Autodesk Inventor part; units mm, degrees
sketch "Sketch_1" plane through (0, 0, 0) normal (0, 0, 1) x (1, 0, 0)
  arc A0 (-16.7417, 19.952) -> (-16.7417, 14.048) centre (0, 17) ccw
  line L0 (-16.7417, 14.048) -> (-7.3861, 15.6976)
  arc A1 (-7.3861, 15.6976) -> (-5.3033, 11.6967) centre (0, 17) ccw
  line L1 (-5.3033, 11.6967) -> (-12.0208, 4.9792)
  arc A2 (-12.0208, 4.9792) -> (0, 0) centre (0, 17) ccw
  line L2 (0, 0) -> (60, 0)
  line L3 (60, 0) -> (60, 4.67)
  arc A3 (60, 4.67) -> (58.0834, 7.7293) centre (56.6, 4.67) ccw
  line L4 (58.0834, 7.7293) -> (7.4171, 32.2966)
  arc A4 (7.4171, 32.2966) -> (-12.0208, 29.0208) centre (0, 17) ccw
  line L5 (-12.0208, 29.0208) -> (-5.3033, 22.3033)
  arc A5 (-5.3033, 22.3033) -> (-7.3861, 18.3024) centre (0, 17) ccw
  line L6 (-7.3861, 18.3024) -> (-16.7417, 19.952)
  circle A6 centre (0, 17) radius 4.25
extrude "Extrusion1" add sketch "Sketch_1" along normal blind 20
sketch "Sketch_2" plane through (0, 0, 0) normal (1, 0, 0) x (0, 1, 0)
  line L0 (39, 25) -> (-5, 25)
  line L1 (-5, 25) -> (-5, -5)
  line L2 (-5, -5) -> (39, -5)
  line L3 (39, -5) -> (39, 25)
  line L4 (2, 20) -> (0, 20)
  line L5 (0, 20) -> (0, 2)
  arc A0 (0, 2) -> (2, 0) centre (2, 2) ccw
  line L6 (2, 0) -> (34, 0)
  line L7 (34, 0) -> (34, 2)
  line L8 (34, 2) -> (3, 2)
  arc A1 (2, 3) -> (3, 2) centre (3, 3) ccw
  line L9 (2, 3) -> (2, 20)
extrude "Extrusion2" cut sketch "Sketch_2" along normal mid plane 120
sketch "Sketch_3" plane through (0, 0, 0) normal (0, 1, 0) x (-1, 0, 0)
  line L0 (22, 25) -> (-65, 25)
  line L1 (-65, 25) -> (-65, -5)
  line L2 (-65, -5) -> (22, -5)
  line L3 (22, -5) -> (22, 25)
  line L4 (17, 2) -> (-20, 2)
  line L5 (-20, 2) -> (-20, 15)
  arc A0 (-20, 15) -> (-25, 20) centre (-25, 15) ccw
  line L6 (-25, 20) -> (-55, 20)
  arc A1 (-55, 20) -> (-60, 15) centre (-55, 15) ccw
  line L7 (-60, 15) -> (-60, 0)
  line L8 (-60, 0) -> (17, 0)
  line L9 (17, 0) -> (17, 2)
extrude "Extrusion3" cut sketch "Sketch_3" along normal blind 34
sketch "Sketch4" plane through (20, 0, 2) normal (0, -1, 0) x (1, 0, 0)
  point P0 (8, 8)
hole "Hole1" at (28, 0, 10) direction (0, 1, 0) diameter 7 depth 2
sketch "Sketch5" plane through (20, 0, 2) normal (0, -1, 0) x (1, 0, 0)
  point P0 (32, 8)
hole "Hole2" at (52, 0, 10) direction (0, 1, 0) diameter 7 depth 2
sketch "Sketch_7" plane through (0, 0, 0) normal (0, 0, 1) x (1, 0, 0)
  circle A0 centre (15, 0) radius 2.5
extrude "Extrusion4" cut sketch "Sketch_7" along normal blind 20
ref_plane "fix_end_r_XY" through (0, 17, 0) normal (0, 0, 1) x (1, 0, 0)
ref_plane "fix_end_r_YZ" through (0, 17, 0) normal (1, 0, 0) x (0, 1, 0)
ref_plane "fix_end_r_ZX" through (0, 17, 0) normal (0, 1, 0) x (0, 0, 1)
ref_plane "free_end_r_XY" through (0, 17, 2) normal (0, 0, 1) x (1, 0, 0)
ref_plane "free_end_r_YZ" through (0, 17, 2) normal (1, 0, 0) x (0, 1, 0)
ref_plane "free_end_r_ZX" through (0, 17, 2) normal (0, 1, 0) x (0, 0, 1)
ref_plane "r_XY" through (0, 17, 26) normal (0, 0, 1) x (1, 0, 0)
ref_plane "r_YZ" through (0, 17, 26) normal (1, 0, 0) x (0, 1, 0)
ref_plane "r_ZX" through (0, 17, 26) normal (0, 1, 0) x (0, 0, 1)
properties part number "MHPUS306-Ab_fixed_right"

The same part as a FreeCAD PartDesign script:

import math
import FreeCAD as App
import Part
import Sketcher

V = App.Vector
Q = App.Units.Quantity

doc = App.newDocument("Part")
body = doc.addObject("PartDesign::Body", "Body")

sketch1 = body.newObject("Sketcher::SketchObject", "Sketch")
sketch1.AttachmentSupport = (doc.getObject("XY_Plane"), [""])
sketch1.MapMode = "FlatFace"
sketch1.addGeometry(Part.LineSegment(V(-7.4, 18.3, 0), V(-16.7, 20, 0)), False)
sketch1.addGeometry(Part.ArcOfCircle(Part.Circle(V(0, 17, 0), V(0, 0, 1), 17), math.radians(170), math.radians(190)), False)
sketch1.addGeometry(Part.LineSegment(V(-16.7, 14, 0), V(-7.4, 15.7, 0)), False)
sketch1.addGeometry(Part.ArcOfCircle(Part.Circle(V(0, 17, 0), V(0, 0, 1), 7.5), math.radians(-170), math.radians(-135)), False)
sketch1.addGeometry(Part.LineSegment(V(-5.3, 11.7, 0), V(-12, 5, 0)), False)
sketch1.addGeometry(Part.ArcOfCircle(Part.Circle(V(0, 17, 0), V(0, 0, 1), 17), math.radians(-135), math.radians(-90)), False)
sketch1.addGeometry(Part.LineSegment(V(0, 0, 0), V(60, 0, 0)), False)
sketch1.addGeometry(Part.LineSegment(V(60, 0, 0), V(60, 4.7, 0)), False)
sketch1.addGeometry(Part.ArcOfCircle(Part.Circle(V(56.6, 4.7, 0), V(0, 0, 1), 3.4), math.radians(0), math.radians(64)), False)
sketch1.addGeometry(Part.LineSegment(V(58.1, 7.7, 0), V(7.4, 32.3, 0)), False)
sketch1.addGeometry(Part.ArcOfCircle(Part.Circle(V(0, 17, 0), V(0, 0, 1), 17), math.radians(64), math.radians(135)), False)
sketch1.addGeometry(Part.LineSegment(V(-12, 29, 0), V(-5.3, 22.3, 0)), False)
sketch1.addGeometry(Part.ArcOfCircle(Part.Circle(V(0, 17, 0), V(0, 0, 1), 7.5), math.radians(135), math.radians(170)), False)
sketch1.addGeometry(Part.Circle(V(0, 17, 0), V(0, 0, 1), 4.2), False)
sketch1.addConstraint(Sketcher.Constraint("Coincident", 0, 2, 1, 1))
sketch1.addConstraint(Sketcher.Constraint("Coincident", 1, 2, 2, 1))
sketch1.addConstraint(Sketcher.Constraint("Coincident", 2, 2, 3, 1))
sketch1.addConstraint(Sketcher.Constraint("Coincident", 3, 2, 4, 1))
sketch1.addConstraint(Sketcher.Constraint("Coincident", 4, 2, 5, 1))
sketch1.addConstraint(Sketcher.Constraint("Tangent", 5, 2, 6, 1))
sketch1.addConstraint(Sketcher.Constraint("Coincident", 6, 2, 7, 1))
sketch1.addConstraint(Sketcher.Constraint("Tangent", 7, 2, 8, 1))
sketch1.addConstraint(Sketcher.Constraint("Tangent", 8, 2, 9, 1))
sketch1.addConstraint(Sketcher.Constraint("Tangent", 9, 2, 10, 1))
sketch1.addConstraint(Sketcher.Constraint("Coincident", 10, 2, 11, 1))
sketch1.addConstraint(Sketcher.Constraint("Coincident", 11, 2, 12, 1))
sketch1.addConstraint(Sketcher.Constraint("Coincident", 12, 2, 0, 1))
sketch1.addConstraint(Sketcher.Constraint("Horizontal", 6))
sketch1.addConstraint(Sketcher.Constraint("Vertical", 7))
sketch1.addConstraint(Sketcher.Constraint("Coincident", 5, 2, -1, 1))
sketch1.addConstraint(Sketcher.Constraint("Coincident", 3, 3, 1, 3))
sketch1.addConstraint(Sketcher.Constraint("Coincident", 5, 3, 1, 3))
sketch1.addConstraint(Sketcher.Constraint("Coincident", 10, 3, 1, 3))
sketch1.addConstraint(Sketcher.Constraint("Coincident", 12, 3, 1, 3))
sketch1.addConstraint(Sketcher.Constraint("Coincident", 13, 3, 1, 3))
sketch1.addConstraint(Sketcher.Constraint("Equal", 1, 5))
sketch1.addConstraint(Sketcher.Constraint("Equal", 5, 10))
sketch1.addConstraint(Sketcher.Constraint("Equal", 3, 12))
sketch1.addConstraint(Sketcher.Constraint("Perpendicular", 4, 11))
sketch1.addConstraint(Sketcher.Constraint("Vertical", 0, 2, 1, 2))
sketch1.addConstraint(Sketcher.Constraint("Vertical", 4, 2, 10, 2))
sketch1.addConstraint(Sketcher.Constraint("Vertical", 3, 2, 11, 2))
sketch1.addConstraint(Sketcher.Constraint("Vertical", 2, 2, 12, 2))
sketch1.addConstraint(Sketcher.Constraint("Radius", 1, 17.0))
sketch1.addConstraint(Sketcher.Constraint("Diameter", 13, 8.5))
sketch1.addConstraint(Sketcher.Constraint("Radius", 3, 7.5))
sketch1.addConstraint(Sketcher.Constraint("Radius", 8, 3.4))
sketch1.addConstraint(Sketcher.Constraint("DistanceX", 6, 1, 6, 2, 60.0))
sketch1.addConstraint(Sketcher.Constraint("Angle", 0, Q("170.0003 deg")))
sketch1.addConstraint(Sketcher.Constraint("DistanceY", 7, 1, 7, 2, 4.67))
sketch1.addConstraint(Sketcher.Constraint("DistanceY", -1, 1, 0, 2, 19.952))
sketch1.addConstraint(Sketcher.Constraint("DistanceY", 3, 2, 2, 2, 4.001))
pad1 = body.newObject("PartDesign::Pad", "Pad")
pad1.Profile = sketch1
pad1.Length = 20

sketch2 = body.newObject("Sketcher::SketchObject", "Sketch001")
sketch2.AttachmentSupport = (doc.getObject("YZ_Plane"), [""])
sketch2.MapMode = "FlatFace"
sketch2.addGeometry(Part.LineSegment(V(39, -5, 0), V(39, 25, 0)), False)
sketch2.addGeometry(Part.LineSegment(V(39, 25, 0), V(-5, 25, 0)), False)
sketch2.addGeometry(Part.LineSegment(V(-5, 25, 0), V(-5, -5, 0)), False)
sketch2.addGeometry(Part.LineSegment(V(-5, -5, 0), V(39, -5, 0)), False)
sketch2.addGeometry(Part.LineSegment(V(0, 20, 0), V(2, 20, 0)), False)
sketch2.addGeometry(Part.LineSegment(V(2, 20, 0), V(2, 3, 0)), False)
sketch2.addGeometry(Part.ArcOfCircle(Part.Circle(V(3, 3, 0), V(0, 0, 1), 1), math.radians(180), math.radians(270)), False)
sketch2.addGeometry(Part.LineSegment(V(3, 2, 0), V(34, 2, 0)), False)
sketch2.addGeometry(Part.LineSegment(V(34, 2, 0), V(34, 0, 0)), False)
sketch2.addGeometry(Part.LineSegment(V(34, 0, 0), V(2, 0, 0)), False)
sketch2.addGeometry(Part.ArcOfCircle(Part.Circle(V(2, 2, 0), V(0, 0, 1), 2), math.radians(180), math.radians(270)), False)
sketch2.addGeometry(Part.LineSegment(V(0, 2, 0), V(0, 20, 0)), False)
sketch2.addConstraint(Sketcher.Constraint("Coincident", 0, 2, 1, 1))
sketch2.addConstraint(Sketcher.Constraint("Coincident", 1, 2, 2, 1))
sketch2.addConstraint(Sketcher.Constraint("Coincident", 2, 2, 3, 1))
sketch2.addConstraint(Sketcher.Constraint("Coincident", 3, 2, 0, 1))
sketch2.addConstraint(Sketcher.Constraint("Coincident", 4, 2, 5, 1))
sketch2.addConstraint(Sketcher.Constraint("Tangent", 5, 2, 6, 1))
sketch2.addConstraint(Sketcher.Constraint("Tangent", 6, 2, 7, 1))
sketch2.addConstraint(Sketcher.Constraint("Coincident", 7, 2, 8, 1))
sketch2.addConstraint(Sketcher.Constraint("Coincident", 8, 2, 9, 1))
sketch2.addConstraint(Sketcher.Constraint("Tangent", 9, 2, 10, 2))
sketch2.addConstraint(Sketcher.Constraint("Tangent", 10, 1, 11, 1))
sketch2.addConstraint(Sketcher.Constraint("Coincident", 11, 2, 4, 1))
sketch2.addConstraint(Sketcher.Constraint("Vertical", 0))
sketch2.addConstraint(Sketcher.Constraint("Horizontal", 1))
sketch2.addConstraint(Sketcher.Constraint("Vertical", 2))
sketch2.addConstraint(Sketcher.Constraint("Horizontal", 3))
sketch2.addConstraint(Sketcher.Constraint("Horizontal", 4))
sketch2.addConstraint(Sketcher.Constraint("Vertical", 5))
sketch2.addConstraint(Sketcher.Constraint("Horizontal", 7))
sketch2.addConstraint(Sketcher.Constraint("Vertical", 8))
sketch2.addConstraint(Sketcher.Constraint("Horizontal", 9))
sketch2.addConstraint(Sketcher.Constraint("Vertical", 11))
sketch2.addConstraint(Sketcher.Constraint("PointOnObject", 8, 2, -1))
sketch2.addConstraint(Sketcher.Constraint("PointOnObject", 10, 1, -2))
sketch2.addConstraint(Sketcher.Constraint("Horizontal", 10, 3, 6, 2))
sketch2.addConstraint(Sketcher.Constraint("Vertical", 10, 3, 4, 2))
sketch2.addConstraint(Sketcher.Constraint("Radius", 6, 1.0))
sketch2.addConstraint(Sketcher.Constraint("Radius", 10, 2.0))
sketch2.addConstraint(Sketcher.Constraint("DistanceX", 1, 2, 1, 1, 44.0))
sketch2.addConstraint(Sketcher.Constraint("DistanceX", 7, 1, 7, 2, 31.0))
sketch2.addConstraint(Sketcher.Constraint("DistanceY", 0, 1, 0, 2, 30.0))
sketch2.addConstraint(Sketcher.Constraint("DistanceY", 5, 2, 5, 1, 17.0))
sketch2.addConstraint(Sketcher.Constraint("DistanceX", -1, 1, 0, 2, 39.0))
sketch2.addConstraint(Sketcher.Constraint("DistanceY", -1, 1, 0, 2, 25.0))
pocket1 = body.newObject("PartDesign::Pocket", "Pocket")
pocket1.Profile = sketch2
pocket1.Length = 120
pocket1.Midplane = True

sketch3 = body.newObject("Sketcher::SketchObject", "Sketch002")
sketch3.AttachmentSupport = (doc.getObject("XZ_Plane"), [""])
sketch3.MapMode = "FlatFace"
sketch3.addGeometry(Part.LineSegment(V(-22, -5, 0), V(-22, 25, 0)), False)
sketch3.addGeometry(Part.LineSegment(V(-22, 25, 0), V(65, 25, 0)), False)
sketch3.addGeometry(Part.LineSegment(V(65, 25, 0), V(65, -5, 0)), False)
sketch3.addGeometry(Part.LineSegment(V(65, -5, 0), V(-22, -5, 0)), False)
sketch3.addGeometry(Part.LineSegment(V(20, 2, 0), V(-17, 2, 0)), False)
sketch3.addGeometry(Part.LineSegment(V(-17, 2, 0), V(-17, 0, 0)), False)
sketch3.addGeometry(Part.LineSegment(V(-17, 0, 0), V(60, 0, 0)), False)
sketch3.addGeometry(Part.LineSegment(V(60, 0, 0), V(60, 15, 0)), False)
sketch3.addGeometry(Part.ArcOfCircle(Part.Circle(V(55, 15, 0), V(0, 0, 1), 5), math.radians(0), math.radians(90)), False)
sketch3.addGeometry(Part.LineSegment(V(55, 20, 0), V(25, 20, 0)), False)
sketch3.addGeometry(Part.ArcOfCircle(Part.Circle(V(25, 15, 0), V(0, 0, 1), 5), math.radians(90), math.radians(180)), False)
sketch3.addGeometry(Part.LineSegment(V(20, 15, 0), V(20, 2, 0)), False)
sketch3.addConstraint(Sketcher.Constraint("Coincident", 0, 2, 1, 1))
sketch3.addConstraint(Sketcher.Constraint("Coincident", 1, 2, 2, 1))
sketch3.addConstraint(Sketcher.Constraint("Coincident", 2, 2, 3, 1))
sketch3.addConstraint(Sketcher.Constraint("Coincident", 3, 2, 0, 1))
sketch3.addConstraint(Sketcher.Constraint("Coincident", 4, 2, 5, 1))
sketch3.addConstraint(Sketcher.Constraint("Coincident", 5, 2, 6, 1))
sketch3.addConstraint(Sketcher.Constraint("Coincident", 6, 2, 7, 1))
sketch3.addConstraint(Sketcher.Constraint("Tangent", 7, 2, 8, 1))
sketch3.addConstraint(Sketcher.Constraint("Tangent", 8, 2, 9, 1))
sketch3.addConstraint(Sketcher.Constraint("Tangent", 9, 2, 10, 1))
sketch3.addConstraint(Sketcher.Constraint("Tangent", 10, 2, 11, 1))
sketch3.addConstraint(Sketcher.Constraint("Coincident", 11, 2, 4, 1))
sketch3.addConstraint(Sketcher.Constraint("Vertical", 0))
sketch3.addConstraint(Sketcher.Constraint("Horizontal", 1))
sketch3.addConstraint(Sketcher.Constraint("Vertical", 2))
sketch3.addConstraint(Sketcher.Constraint("Horizontal", 3))
sketch3.addConstraint(Sketcher.Constraint("Horizontal", 4))
sketch3.addConstraint(Sketcher.Constraint("Vertical", 5))
sketch3.addConstraint(Sketcher.Constraint("Horizontal", 6))
sketch3.addConstraint(Sketcher.Constraint("Vertical", 7))
sketch3.addConstraint(Sketcher.Constraint("Horizontal", 9))
sketch3.addConstraint(Sketcher.Constraint("Vertical", 11))
sketch3.addConstraint(Sketcher.Constraint("Equal", 8, 10))
sketch3.addConstraint(Sketcher.Constraint("PointOnObject", 5, 2, -1))
sketch3.addConstraint(Sketcher.Constraint("Equal", 9, 0))
sketch3.addConstraint(Sketcher.Constraint("Radius", 8, 5.0))
sketch3.addConstraint(Sketcher.Constraint("DistanceX", 1, 1, 1, 2, 87.0))
sketch3.addConstraint(Sketcher.Constraint("DistanceX", 4, 2, 4, 1, 37.0))
sketch3.addConstraint(Sketcher.Constraint("DistanceX", 6, 1, 6, 2, 77.0))
sketch3.addConstraint(Sketcher.Constraint("DistanceY", 5, 2, 5, 1, 2.0))
sketch3.addConstraint(Sketcher.Constraint("DistanceY", 7, 1, 7, 2, 15.0))
sketch3.addConstraint(Sketcher.Constraint("DistanceX", -1, 1, 8, 3, 55.0))
sketch3.addConstraint(Sketcher.Constraint("DistanceX", 0, 2, -1, 1, 22.0))
sketch3.addConstraint(Sketcher.Constraint("DistanceY", -1, 1, 0, 2, 25.0))
pocket2 = body.newObject("PartDesign::Pocket", "Pocket001")
pocket2.Profile = sketch3
pocket2.Length = 34

sketch4 = body.newObject("Sketcher::SketchObject", "Sketch003")
sketch4.AttachmentSupport = (doc.getObject("XZ_Plane"), [""])
sketch4.MapMode = "FlatFace"
sketch4.addGeometry(Part.Circle(V(28, 10, 0), V(0, 0, 1), 3.5), False)
sketch4.addConstraint(Sketcher.Constraint("Diameter", 0, 7.0))
sketch4.addConstraint(Sketcher.Constraint("DistanceX", -1, 1, 0, 3, 28.0))
sketch4.addConstraint(Sketcher.Constraint("DistanceY", -1, 1, 0, 3, 10.0))
doc.recompute()
hole = body.newObject("PartDesign::Hole", "Hole")
hole.Profile = sketch4
hole.ThreadType = "None"
hole.Diameter = 7
hole.DepthType = "Dimension"
hole.Depth = 2
hole.DrillPoint = "Flat"

sketch5 = body.newObject("Sketcher::SketchObject", "Sketch004")
sketch5.AttachmentSupport = (doc.getObject("XZ_Plane"), [""])
sketch5.MapMode = "FlatFace"
sketch5.addGeometry(Part.Circle(V(52, 10, 0), V(0, 0, 1), 3.5), False)
sketch5.addConstraint(Sketcher.Constraint("Diameter", 0, 7.0))
sketch5.addConstraint(Sketcher.Constraint("DistanceX", -1, 1, 0, 3, 52.0))
sketch5.addConstraint(Sketcher.Constraint("DistanceY", -1, 1, 0, 3, 10.0))
doc.recompute()
hole2 = body.newObject("PartDesign::Hole", "Hole001")
hole2.Profile = sketch5
hole2.ThreadType = "None"
hole2.Diameter = 7
hole2.DepthType = "Dimension"
hole2.Depth = 2
hole2.DrillPoint = "Flat"

sketch6 = body.newObject("Sketcher::SketchObject", "Sketch005")
sketch6.AttachmentSupport = (doc.getObject("XY_Plane"), [""])
sketch6.MapMode = "FlatFace"
sketch6.addGeometry(Part.Circle(V(15, 0, 0), V(0, 0, 1), 2.5), False)
sketch6.addConstraint(Sketcher.Constraint("PointOnObject", 0, 3, -1))
sketch6.addConstraint(Sketcher.Constraint("Diameter", 0, 5.0))
sketch6.addConstraint(Sketcher.Constraint("DistanceX", -1, 1, 0, 3, 15.0))
pocket3 = body.newObject("PartDesign::Pocket", "Pocket002")
pocket3.Profile = sketch6
pocket3.Length = 20
pocket3.Reversed = True

doc.recompute()
